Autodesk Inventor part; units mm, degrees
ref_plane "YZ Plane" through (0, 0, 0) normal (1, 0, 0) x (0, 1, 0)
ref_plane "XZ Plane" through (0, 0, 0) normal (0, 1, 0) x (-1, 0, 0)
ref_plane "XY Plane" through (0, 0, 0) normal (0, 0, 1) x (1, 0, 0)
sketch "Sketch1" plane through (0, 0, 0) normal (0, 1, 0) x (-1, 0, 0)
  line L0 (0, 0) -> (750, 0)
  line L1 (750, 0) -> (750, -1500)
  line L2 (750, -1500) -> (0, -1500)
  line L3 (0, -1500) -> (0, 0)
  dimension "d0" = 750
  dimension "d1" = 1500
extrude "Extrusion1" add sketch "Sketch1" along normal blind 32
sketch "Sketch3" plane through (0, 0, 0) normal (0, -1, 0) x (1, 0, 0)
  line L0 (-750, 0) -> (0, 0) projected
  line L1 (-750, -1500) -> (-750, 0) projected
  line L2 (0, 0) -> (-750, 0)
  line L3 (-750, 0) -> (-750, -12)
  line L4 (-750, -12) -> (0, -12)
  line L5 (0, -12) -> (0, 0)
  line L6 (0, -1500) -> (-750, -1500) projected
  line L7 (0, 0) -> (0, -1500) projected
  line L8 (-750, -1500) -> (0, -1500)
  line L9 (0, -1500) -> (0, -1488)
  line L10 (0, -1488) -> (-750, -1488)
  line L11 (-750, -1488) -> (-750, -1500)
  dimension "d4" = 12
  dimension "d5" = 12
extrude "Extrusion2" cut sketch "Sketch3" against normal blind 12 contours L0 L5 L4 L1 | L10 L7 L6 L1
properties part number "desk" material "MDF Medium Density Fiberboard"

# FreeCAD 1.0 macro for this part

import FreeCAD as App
import Part
import Sketcher
Q = App.Units.Quantity


def add_polygon(sketch, points):
    """Adds a closed chain of lines whose ends are joined by coincident constraints."""
    first, n = sketch.GeometryCount, len(points)
    for a, b in zip(points, points[1:] + points[:1]):
        sketch.addGeometry(Part.LineSegment(App.Vector(*a, 0), App.Vector(*b, 0)), False)
    for i in range(n):
        sketch.addConstraint(Sketcher.Constraint("Coincident", first + i, 2, first + (i + 1) % n, 1))

doc = App.newDocument("Part")
params = doc.addObject("Spreadsheet::Sheet", "Params")
for row, (alias, value) in enumerate([
    ("sketch1_width", "750 mm"),
    ("sketch1_height", "1500 mm"),
    ("pad1_length", "32 mm"),
    ("sketch2_height", "12 mm"),
    ("sketch2_width", "750 mm"),
    ("pocket1_length", "12 mm"),
], start=1):
    params.set(f"A{row}", alias)
    params.set(f"B{row}", "=" + value)
    params.setAlias(f"B{row}", alias)

body = doc.addObject("PartDesign::Body", "Body")

# Sketch on XZ plane
sketch1 = body.newObject("Sketcher::SketchObject", "Sketch")
sketch1.AttachmentSupport = (doc.getObject("XZ_Plane"), [""])
sketch1.MapMode = "FlatFace"
add_polygon(sketch1, [(-750, 0), (0, 0), (0, -1500), (-750, -1500)])  # lines 0-3
sketch1.addConstraint([
    Sketcher.Constraint("Horizontal", 0),
    Sketcher.Constraint("Vertical", 1),
    Sketcher.Constraint("Horizontal", 2),
    Sketcher.Constraint("Vertical", 3),
    Sketcher.Constraint("Coincident", 0, 2, -1, 1),
    Sketcher.Constraint("DistanceX", 0, 1, 0, 2, Q("750 mm")),
    Sketcher.Constraint("DistanceY", 1, 2, 1, 1, Q("1500 mm")),
])
sketch1.setExpression("Constraints[9]", "Params.sketch1_width")
sketch1.setExpression("Constraints[10]", "Params.sketch1_height")
pad1 = body.newObject("PartDesign::Pad", "Pad")
pad1.Profile = sketch1
pad1.setExpression("Length", "Params.pad1_length")
pad1.Reversed = True

# Sketch on XZ plane
sketch2 = body.newObject("Sketcher::SketchObject", "Sketch001")
sketch2.AttachmentSupport = (doc.getObject("XZ_Plane"), [""])
sketch2.MapMode = "FlatFace"
add_polygon(sketch2, [(0, 0), (-750, 0), (-750, -12), (0, -12)])  # lines 0-3
add_polygon(sketch2, [(0, -1488), (-750, -1488), (-750, -1500), (0, -1500)])  # lines 4-7
sketch2.addConstraint([
    Sketcher.Constraint("Horizontal", 0),
    Sketcher.Constraint("Vertical", 1),
    Sketcher.Constraint("Horizontal", 2),
    Sketcher.Constraint("Vertical", 3),
    Sketcher.Constraint("Horizontal", 4),
    Sketcher.Constraint("Vertical", 5),
    Sketcher.Constraint("Horizontal", 6),
    Sketcher.Constraint("Vertical", 7),
    Sketcher.Constraint("Coincident", 3, 2, -1, 1),
    Sketcher.Constraint("PointOnObject", 6, 2, -2),
    Sketcher.Constraint("Vertical", 1, 2, 4, 2),
    Sketcher.Constraint("Equal", 3, 5),
    Sketcher.Constraint("DistanceY", 1, 2, 1, 1, Q("12 mm")),
    Sketcher.Constraint("DistanceX", 0, 2, 0, 1, Q("750 mm")),
    Sketcher.Constraint("DistanceY", 4, 2, -1, 1, Q("1488 mm")),
])
sketch2.setExpression("Constraints[20]", "Params.sketch2_height")
sketch2.setExpression("Constraints[21]", "Params.sketch2_width")
pocket1 = body.newObject("PartDesign::Pocket", "Pocket")
pocket1.Profile = sketch2
pocket1.setExpression("Length", "Params.pocket1_length")

doc.recompute()
